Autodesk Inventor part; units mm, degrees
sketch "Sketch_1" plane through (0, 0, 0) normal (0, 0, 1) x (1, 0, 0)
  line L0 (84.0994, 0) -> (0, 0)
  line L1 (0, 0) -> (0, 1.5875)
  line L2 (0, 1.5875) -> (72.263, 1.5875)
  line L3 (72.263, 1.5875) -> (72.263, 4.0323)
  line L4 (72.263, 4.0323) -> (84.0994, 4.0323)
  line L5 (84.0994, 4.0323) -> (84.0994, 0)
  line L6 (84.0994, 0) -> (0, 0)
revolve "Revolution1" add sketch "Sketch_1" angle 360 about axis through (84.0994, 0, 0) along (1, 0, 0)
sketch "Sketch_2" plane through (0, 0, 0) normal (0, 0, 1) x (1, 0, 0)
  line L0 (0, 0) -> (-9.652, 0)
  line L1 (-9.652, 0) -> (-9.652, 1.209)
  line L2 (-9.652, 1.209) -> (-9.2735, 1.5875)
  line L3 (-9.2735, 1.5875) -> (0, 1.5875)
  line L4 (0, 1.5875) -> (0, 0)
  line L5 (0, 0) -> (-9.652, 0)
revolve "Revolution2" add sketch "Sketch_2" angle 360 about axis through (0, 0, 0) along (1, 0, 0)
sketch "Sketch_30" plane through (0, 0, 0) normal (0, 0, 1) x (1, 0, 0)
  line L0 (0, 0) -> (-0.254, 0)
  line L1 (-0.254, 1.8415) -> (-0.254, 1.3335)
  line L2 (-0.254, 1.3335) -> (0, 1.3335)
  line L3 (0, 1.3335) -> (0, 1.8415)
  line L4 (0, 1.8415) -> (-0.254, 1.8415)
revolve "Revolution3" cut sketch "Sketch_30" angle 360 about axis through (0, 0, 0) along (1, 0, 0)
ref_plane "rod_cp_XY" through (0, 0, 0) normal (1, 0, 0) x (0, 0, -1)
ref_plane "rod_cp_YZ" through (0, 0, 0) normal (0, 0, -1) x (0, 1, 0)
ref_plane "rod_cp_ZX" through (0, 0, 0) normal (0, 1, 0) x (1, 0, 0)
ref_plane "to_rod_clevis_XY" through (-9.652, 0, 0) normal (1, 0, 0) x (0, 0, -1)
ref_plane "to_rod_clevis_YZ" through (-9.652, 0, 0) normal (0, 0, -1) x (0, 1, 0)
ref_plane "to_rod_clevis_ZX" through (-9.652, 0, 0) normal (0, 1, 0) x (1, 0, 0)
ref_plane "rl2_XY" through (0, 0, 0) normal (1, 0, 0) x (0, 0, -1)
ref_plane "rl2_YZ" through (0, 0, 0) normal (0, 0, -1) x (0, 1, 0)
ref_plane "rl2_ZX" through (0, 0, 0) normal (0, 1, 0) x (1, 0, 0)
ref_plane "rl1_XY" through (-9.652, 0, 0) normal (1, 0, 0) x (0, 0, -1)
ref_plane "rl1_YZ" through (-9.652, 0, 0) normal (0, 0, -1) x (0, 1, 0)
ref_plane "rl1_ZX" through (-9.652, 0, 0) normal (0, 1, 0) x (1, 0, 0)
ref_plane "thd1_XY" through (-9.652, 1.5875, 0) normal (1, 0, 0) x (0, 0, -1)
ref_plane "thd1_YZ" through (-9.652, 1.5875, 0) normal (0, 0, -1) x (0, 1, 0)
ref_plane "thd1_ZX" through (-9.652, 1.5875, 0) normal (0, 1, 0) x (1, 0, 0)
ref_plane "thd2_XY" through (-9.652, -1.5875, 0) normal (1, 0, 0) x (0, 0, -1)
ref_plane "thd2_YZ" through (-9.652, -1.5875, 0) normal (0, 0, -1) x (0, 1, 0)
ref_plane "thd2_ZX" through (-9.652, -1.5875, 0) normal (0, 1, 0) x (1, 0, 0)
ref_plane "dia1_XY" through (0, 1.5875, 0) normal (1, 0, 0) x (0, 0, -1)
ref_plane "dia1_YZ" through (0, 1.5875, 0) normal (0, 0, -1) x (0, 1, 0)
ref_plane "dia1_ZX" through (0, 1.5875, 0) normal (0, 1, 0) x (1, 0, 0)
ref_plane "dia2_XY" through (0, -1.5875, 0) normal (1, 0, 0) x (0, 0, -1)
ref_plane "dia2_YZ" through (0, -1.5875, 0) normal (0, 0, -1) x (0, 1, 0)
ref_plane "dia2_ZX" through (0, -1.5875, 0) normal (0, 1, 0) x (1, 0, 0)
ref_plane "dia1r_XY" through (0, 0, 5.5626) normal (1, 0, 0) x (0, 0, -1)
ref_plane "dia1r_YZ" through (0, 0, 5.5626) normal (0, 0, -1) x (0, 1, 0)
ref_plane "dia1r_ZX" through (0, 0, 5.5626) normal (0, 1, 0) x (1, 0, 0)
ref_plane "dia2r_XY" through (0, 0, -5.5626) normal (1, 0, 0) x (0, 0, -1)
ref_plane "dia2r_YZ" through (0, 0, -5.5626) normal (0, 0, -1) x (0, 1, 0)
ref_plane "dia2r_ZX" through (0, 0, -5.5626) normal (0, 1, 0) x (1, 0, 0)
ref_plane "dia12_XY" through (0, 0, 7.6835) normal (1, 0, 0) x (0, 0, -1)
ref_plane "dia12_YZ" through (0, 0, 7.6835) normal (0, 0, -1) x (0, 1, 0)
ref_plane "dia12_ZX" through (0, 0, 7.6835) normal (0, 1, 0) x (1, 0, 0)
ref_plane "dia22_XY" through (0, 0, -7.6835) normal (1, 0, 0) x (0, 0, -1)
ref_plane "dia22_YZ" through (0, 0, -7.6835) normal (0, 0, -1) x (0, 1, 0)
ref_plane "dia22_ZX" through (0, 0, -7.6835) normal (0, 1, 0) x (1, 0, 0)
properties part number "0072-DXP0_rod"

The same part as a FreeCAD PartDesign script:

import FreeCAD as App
import Part
import Sketcher
Q = App.Units.Quantity


def add_polygon(sketch, points):
    """Adds a closed chain of lines whose ends are joined by coincident constraints."""
    first, n = sketch.GeometryCount, len(points)
    for a, b in zip(points, points[1:] + points[:1]):
        sketch.addGeometry(Part.LineSegment(App.Vector(*a, 0), App.Vector(*b, 0)), False)
    for i in range(n):
        sketch.addConstraint(Sketcher.Constraint("Coincident", first + i, 2, first + (i + 1) % n, 1))

doc = App.newDocument("Part")
params = doc.addObject("Spreadsheet::Sheet", "Params")
for row, (alias, value) in enumerate([
    ("sketch1_width", "3.311 in"),
    ("sketch1_width2", "0.466 in"),
    ("sketch1_height", "0.0625 in"),
    ("revolution_angle", "360 deg"),
    ("sketch2_width", "0.38 in"),
    ("sketch2_height", "0.0625 in"),
    ("revolution2_angle", "360 deg"),
    ("sketch3_width", "0.01 in"),
    ("sketch3_height", "0.02 in"),
    ("groove_angle", "360 deg"),
], start=1):
    params.set(f"A{row}", alias)
    params.set(f"B{row}", "=" + value)
    params.setAlias(f"B{row}", alias)

body = doc.addObject("PartDesign::Body", "Body")

# Sketch on XY plane
sketch1 = doc.addObject("Sketcher::SketchObject", "Sketch")
body.addObject(sketch1)
sketch1.AttachmentSupport = (doc.XY_Plane, [""])
sketch1.MapMode = "FlatFace"
add_polygon(sketch1, [(0, 0), (84.1, 0), (84.1, 4), (72.3, 4), (72.3, 1.6), (0, 1.6)])  # lines 0-5
sketch1.addConstraint(Sketcher.Constraint("Horizontal", 0))
sketch1.addConstraint(Sketcher.Constraint("Vertical", 1))
sketch1.addConstraint(Sketcher.Constraint("Horizontal", 2))
sketch1.addConstraint(Sketcher.Constraint("Vertical", 3))
sketch1.addConstraint(Sketcher.Constraint("Horizontal", 4))
sketch1.addConstraint(Sketcher.Constraint("Vertical", 5))
sketch1.addConstraint(Sketcher.Constraint("Coincident", 5, 2, -1, 1))
sketch1.addConstraint(Sketcher.Constraint("DistanceX", 0, 1, 0, 2, Q("3.311 in")))
sketch1.addConstraint(Sketcher.Constraint("DistanceX", 2, 2, 2, 1, Q("0.466 in")))
sketch1.addConstraint(Sketcher.Constraint("DistanceY", 5, 2, 5, 1, Q("0.0625 in")))
sketch1.addConstraint(Sketcher.Constraint("DistanceY", 1, 1, 1, 2, Q("4.0323 mm")))
sketch1.setExpression("Constraints[13]", "Params.sketch1_width")
sketch1.setExpression("Constraints[14]", "Params.sketch1_width2")
sketch1.setExpression("Constraints[15]", "Params.sketch1_height")
revolution = doc.addObject("PartDesign::Revolution", "Revolution")
body.addObject(revolution)
revolution.Profile = sketch1
revolution.ReferenceAxis = (sketch1, ["H_Axis"])
revolution.setExpression("Angle", "Params.revolution_angle")

# Sketch on XY plane
sketch2 = doc.addObject("Sketcher::SketchObject", "Sketch001")
body.addObject(sketch2)
sketch2.AttachmentSupport = (doc.XY_Plane, [""])
sketch2.MapMode = "FlatFace"
add_polygon(sketch2, [(-9.7, 0), (0, 0), (0, 1.6), (-9.3, 1.6), (-9.7, 1.2)])  # lines 0-4
sketch2.addConstraint(Sketcher.Constraint("Horizontal", 0))
sketch2.addConstraint(Sketcher.Constraint("Vertical", 1))
sketch2.addConstraint(Sketcher.Constraint("Horizontal", 2))
sketch2.addConstraint(Sketcher.Constraint("Vertical", 4))
sketch2.addConstraint(Sketcher.Constraint("Coincident", 0, 2, -1, 1))
sketch2.addConstraint(Sketcher.Constraint("Angle", 3, Q("-135 deg")))
sketch2.addConstraint(Sketcher.Constraint("DistanceX", 0, 1, 0, 2, Q("0.38 in")))
sketch2.addConstraint(Sketcher.Constraint("DistanceY", 1, 1, 1, 2, Q("0.0625 in")))
sketch2.addConstraint(Sketcher.Constraint("DistanceX", 2, 2, 2, 1, Q("0.3651 in")))
sketch2.setExpression("Constraints[11]", "Params.sketch2_width")
sketch2.setExpression("Constraints[12]", "Params.sketch2_height")
revolution2 = doc.addObject("PartDesign::Revolution", "Revolution001")
body.addObject(revolution2)
revolution2.Profile = sketch2
revolution2.ReferenceAxis = (sketch2, ["H_Axis"])
revolution2.setExpression("Angle", "Params.revolution2_angle")

# Sketch on XY plane
sketch3 = doc.addObject("Sketcher::SketchObject", "Sketch002")
body.addObject(sketch3)
sketch3.AttachmentSupport = (doc.XY_Plane, [""])
sketch3.MapMode = "FlatFace"
add_polygon(sketch3, [(0, 1.84), (-0.25, 1.84), (-0.25, 1.33), (0, 1.33)])  # lines 0-3
sketch3.addConstraint(Sketcher.Constraint("Horizontal", 0))
sketch3.addConstraint(Sketcher.Constraint("Vertical", 1))
sketch3.addConstraint(Sketcher.Constraint("Horizontal", 2))
sketch3.addConstraint(Sketcher.Constraint("Vertical", 3))
sketch3.addConstraint(Sketcher.Constraint("PointOnObject", 2, 2, -2))
sketch3.addConstraint(Sketcher.Constraint("DistanceX", 0, 2, 0, 1, Q("0.01 in")))
sketch3.addConstraint(Sketcher.Constraint("DistanceY", 1, 2, 1, 1, Q("0.02 in")))
sketch3.addConstraint(Sketcher.Constraint("DistanceY", -1, 1, 0, 2, Q("0.0725 in")))
sketch3.setExpression("Constraints[9]", "Params.sketch3_width")
sketch3.setExpression("Constraints[10]", "Params.sketch3_height")
groove = doc.addObject("PartDesign::Groove", "Groove")
body.addObject(groove)
groove.Profile = sketch3
groove.ReferenceAxis = (sketch3, ["H_Axis"])
groove.setExpression("Angle", "Params.groove_angle")

doc.recompute()
